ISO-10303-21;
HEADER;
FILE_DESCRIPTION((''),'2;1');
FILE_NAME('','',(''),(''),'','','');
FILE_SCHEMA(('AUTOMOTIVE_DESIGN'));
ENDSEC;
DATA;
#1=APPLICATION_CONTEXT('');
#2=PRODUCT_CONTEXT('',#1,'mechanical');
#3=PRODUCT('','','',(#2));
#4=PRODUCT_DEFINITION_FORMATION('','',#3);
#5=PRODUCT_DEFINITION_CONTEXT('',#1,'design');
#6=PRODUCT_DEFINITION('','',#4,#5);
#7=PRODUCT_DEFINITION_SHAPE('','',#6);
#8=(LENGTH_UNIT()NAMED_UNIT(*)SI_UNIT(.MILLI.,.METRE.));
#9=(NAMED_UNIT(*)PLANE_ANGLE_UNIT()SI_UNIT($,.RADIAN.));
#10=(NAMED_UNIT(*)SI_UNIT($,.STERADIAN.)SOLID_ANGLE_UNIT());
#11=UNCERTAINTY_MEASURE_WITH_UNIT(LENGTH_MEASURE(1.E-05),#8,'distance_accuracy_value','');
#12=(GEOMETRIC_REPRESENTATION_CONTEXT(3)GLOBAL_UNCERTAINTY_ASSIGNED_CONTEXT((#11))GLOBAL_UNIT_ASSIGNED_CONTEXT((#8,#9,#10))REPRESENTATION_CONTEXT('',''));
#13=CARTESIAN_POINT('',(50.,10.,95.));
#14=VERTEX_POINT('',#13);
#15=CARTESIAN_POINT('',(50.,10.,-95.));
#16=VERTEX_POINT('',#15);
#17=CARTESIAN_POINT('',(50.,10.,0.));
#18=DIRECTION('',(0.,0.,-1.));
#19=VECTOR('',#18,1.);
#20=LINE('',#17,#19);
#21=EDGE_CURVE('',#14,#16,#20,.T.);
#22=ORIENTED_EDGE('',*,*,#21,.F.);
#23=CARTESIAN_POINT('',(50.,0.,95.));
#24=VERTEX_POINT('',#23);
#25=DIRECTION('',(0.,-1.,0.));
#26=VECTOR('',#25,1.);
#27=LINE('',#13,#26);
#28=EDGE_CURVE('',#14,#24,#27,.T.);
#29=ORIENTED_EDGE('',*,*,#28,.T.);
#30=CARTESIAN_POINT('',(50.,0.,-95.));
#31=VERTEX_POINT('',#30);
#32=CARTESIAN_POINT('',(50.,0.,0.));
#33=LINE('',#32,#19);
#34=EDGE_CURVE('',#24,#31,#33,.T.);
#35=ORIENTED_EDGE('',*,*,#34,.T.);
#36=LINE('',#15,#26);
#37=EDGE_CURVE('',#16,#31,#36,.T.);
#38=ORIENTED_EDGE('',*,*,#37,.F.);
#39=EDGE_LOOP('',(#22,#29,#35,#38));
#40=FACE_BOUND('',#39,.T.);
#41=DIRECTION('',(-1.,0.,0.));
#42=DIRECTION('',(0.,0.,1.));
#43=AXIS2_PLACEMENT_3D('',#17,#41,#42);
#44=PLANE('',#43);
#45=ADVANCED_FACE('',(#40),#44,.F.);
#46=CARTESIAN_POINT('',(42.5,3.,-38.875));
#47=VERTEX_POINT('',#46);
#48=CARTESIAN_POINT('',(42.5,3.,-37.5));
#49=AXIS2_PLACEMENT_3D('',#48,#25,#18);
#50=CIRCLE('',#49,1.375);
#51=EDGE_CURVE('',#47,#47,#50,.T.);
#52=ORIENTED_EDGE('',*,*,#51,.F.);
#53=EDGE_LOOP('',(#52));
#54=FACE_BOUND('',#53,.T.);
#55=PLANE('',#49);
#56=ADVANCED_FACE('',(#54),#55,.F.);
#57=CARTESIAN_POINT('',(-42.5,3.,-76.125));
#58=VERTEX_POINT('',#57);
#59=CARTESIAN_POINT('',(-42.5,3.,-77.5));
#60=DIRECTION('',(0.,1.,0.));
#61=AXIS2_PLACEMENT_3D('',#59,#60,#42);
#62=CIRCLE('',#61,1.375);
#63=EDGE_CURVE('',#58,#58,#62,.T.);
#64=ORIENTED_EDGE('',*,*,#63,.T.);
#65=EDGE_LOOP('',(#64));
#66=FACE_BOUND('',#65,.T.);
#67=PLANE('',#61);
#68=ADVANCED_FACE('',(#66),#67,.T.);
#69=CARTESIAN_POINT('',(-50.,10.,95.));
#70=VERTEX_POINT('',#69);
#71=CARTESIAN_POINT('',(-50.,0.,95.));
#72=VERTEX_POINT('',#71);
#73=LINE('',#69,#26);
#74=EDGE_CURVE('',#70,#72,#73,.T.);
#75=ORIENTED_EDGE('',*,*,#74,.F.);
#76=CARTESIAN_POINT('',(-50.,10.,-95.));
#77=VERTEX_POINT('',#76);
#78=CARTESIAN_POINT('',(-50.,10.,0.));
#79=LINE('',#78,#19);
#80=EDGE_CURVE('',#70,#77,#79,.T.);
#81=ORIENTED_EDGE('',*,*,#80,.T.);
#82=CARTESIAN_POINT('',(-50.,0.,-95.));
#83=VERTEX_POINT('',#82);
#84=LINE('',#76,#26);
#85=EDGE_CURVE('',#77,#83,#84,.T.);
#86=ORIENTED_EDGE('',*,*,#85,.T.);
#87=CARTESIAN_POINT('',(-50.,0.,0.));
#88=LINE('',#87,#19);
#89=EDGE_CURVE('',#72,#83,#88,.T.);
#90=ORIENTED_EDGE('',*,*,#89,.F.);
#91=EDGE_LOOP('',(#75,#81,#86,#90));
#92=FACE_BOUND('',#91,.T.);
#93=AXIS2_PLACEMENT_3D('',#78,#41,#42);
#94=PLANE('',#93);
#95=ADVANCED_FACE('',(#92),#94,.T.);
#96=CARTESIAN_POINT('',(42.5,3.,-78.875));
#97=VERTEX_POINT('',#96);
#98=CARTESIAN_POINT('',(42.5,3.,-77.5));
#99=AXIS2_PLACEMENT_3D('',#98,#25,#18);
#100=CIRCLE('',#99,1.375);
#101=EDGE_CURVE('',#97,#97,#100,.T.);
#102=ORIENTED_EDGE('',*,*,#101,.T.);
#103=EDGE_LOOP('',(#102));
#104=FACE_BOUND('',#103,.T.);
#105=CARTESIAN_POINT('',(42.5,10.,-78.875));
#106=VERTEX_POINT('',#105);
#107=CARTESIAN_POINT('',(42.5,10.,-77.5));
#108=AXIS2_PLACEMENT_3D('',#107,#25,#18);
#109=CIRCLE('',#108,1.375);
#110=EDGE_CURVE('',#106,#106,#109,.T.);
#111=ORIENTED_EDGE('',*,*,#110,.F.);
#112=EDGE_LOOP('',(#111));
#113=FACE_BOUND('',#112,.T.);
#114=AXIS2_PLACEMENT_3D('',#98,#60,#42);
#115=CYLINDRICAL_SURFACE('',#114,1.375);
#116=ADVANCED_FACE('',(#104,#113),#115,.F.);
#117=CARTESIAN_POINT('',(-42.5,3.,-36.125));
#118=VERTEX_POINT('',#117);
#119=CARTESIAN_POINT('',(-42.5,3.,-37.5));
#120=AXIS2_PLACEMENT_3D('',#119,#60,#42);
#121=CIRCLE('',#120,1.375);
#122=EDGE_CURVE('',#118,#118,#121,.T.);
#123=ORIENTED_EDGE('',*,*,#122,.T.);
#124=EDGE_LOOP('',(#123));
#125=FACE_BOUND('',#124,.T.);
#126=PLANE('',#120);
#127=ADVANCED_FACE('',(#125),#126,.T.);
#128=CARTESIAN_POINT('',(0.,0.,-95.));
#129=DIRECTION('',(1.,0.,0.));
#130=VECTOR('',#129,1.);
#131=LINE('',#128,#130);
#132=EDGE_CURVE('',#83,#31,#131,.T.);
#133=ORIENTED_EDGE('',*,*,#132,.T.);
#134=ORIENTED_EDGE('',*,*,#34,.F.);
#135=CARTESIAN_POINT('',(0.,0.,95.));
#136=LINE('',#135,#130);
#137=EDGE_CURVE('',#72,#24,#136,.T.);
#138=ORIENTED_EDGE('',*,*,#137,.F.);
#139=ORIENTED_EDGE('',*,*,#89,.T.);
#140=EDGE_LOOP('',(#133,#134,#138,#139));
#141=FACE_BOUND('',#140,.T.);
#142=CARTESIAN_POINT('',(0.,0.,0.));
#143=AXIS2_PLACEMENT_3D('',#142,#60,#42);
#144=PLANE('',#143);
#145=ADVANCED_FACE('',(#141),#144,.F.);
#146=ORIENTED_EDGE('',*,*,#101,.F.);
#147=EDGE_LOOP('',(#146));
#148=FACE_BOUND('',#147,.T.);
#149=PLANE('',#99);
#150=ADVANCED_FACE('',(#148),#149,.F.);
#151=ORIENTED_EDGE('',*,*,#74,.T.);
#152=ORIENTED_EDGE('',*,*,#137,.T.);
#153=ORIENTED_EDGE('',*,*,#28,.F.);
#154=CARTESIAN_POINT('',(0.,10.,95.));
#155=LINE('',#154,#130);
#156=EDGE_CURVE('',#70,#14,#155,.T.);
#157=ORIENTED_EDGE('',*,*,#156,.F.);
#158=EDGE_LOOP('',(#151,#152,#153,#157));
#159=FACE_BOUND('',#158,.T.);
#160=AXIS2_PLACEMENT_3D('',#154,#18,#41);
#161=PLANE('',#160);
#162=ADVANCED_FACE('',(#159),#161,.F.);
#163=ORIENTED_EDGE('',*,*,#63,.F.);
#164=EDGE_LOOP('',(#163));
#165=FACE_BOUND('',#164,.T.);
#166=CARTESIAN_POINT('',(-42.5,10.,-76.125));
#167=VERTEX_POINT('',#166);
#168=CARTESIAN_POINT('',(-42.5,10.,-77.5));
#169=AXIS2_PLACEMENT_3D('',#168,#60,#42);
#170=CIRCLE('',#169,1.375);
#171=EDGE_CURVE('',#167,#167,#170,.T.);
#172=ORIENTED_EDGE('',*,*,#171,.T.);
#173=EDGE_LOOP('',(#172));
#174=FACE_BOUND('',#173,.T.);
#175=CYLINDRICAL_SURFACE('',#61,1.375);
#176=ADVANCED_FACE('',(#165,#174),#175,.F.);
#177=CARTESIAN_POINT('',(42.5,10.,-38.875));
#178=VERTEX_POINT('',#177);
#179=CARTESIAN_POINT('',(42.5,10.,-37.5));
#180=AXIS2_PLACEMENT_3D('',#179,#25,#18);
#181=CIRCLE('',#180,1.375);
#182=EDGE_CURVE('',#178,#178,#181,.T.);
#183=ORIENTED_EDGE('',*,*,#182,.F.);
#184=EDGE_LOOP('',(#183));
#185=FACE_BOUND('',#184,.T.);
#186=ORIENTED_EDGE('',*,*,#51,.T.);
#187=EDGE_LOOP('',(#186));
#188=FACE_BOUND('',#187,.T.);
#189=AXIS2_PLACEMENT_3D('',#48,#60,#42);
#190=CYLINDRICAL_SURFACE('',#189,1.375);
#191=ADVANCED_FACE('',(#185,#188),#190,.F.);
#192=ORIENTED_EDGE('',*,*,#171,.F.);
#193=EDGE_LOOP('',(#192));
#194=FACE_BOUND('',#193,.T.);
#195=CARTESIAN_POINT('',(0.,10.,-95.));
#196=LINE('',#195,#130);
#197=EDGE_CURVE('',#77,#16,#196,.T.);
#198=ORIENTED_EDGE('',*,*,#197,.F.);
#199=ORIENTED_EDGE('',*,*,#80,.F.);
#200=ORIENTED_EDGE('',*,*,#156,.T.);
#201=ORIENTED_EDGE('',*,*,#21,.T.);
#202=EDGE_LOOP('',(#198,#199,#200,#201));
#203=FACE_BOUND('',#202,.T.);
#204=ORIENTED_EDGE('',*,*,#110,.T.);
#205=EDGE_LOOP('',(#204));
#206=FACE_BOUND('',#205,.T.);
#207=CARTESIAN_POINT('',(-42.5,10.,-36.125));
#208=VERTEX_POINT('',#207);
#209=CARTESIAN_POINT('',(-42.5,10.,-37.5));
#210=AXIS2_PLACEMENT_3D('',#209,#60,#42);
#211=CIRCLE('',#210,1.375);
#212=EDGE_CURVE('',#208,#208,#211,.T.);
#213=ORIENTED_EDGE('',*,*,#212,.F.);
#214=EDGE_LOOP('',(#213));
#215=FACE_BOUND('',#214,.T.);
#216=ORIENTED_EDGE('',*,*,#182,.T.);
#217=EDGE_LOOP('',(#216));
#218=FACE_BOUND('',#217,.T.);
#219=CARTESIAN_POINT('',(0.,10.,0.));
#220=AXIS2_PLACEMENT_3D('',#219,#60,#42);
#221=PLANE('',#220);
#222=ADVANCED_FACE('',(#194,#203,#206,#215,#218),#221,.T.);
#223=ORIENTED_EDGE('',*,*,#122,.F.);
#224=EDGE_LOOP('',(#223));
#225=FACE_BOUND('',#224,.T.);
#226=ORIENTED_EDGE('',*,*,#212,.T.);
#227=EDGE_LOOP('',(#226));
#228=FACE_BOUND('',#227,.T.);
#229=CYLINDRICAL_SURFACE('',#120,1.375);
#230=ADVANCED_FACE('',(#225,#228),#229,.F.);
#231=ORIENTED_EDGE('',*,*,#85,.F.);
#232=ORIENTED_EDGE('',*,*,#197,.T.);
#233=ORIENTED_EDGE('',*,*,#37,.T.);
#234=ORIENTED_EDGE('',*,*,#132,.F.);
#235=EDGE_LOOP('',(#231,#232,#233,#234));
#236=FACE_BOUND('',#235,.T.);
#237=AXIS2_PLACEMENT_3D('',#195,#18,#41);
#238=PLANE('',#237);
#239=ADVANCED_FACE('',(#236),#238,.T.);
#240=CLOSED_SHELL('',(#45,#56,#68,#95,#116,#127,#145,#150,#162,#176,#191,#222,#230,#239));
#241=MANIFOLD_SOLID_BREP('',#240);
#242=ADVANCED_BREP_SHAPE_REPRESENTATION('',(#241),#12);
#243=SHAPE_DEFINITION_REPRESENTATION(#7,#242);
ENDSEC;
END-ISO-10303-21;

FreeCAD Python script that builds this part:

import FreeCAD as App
import Part
import Sketcher

doc = App.newDocument("Part")
params = doc.addObject("Spreadsheet::Sheet", "Params")
for row, (alias, value) in enumerate([
    ("sketch1_width", "100 mm"),
    ("sketch1_height", "190 mm"),
    ("pad1_length", "10 mm"),
    ("sketch2_diameter", "2.75 mm"),
    ("pocket1_length", "7 mm"),
], start=1):
    params.set(f"A{row}", alias)
    params.set(f"B{row}", "=" + value)
    params.setAlias(f"B{row}", alias)

body = doc.addObject("PartDesign::Body", "Body")

# Sketch on XZ plane
sketch1 = doc.addObject("Sketcher::SketchObject", "Sketch")
body.addObject(sketch1)
sketch1.AttachmentSupport = (doc.XZ_Plane, [""])
sketch1.MapMode = "FlatFace"
sketch1.addGeometry([
    Part.LineSegment(App.Vector(-50, -95, 0), App.Vector(-50, 95, 0)),
    Part.LineSegment(App.Vector(-50, 95, 0), App.Vector(50, 95, 0)),
    Part.LineSegment(App.Vector(50, 95, 0), App.Vector(50, -95, 0)),
    Part.LineSegment(App.Vector(50, -95, 0), App.Vector(-50, -95, 0)),
], False)
sketch1.addConstraint([
    Sketcher.Constraint("Coincident", 0, 2, 1, 1),
    Sketcher.Constraint("Coincident", 1, 2, 2, 1),
    Sketcher.Constraint("Coincident", 2, 2, 3, 1),
    Sketcher.Constraint("Coincident", 3, 2, 0, 1),
    Sketcher.Constraint("Vertical", 0),
    Sketcher.Constraint("Horizontal", 1),
    Sketcher.Constraint("Vertical", 2),
    Sketcher.Constraint("Horizontal", 3),
    Sketcher.Constraint("Symmetric", 0, 2, 2, 2, -1, 1),
    Sketcher.Constraint("DistanceX", 1, 1, 1, 2, 100.0),
    Sketcher.Constraint("DistanceY", 0, 1, 0, 2, 190.0),
])
sketch1.setExpression("Constraints[9]", "Params.sketch1_width")
sketch1.setExpression("Constraints[10]", "Params.sketch1_height")
pad1 = doc.addObject("PartDesign::Pad", "Pad")
body.addObject(pad1)
pad1.Profile = sketch1
pad1.setExpression("Length", "Params.pad1_length")
pad1.Reversed = True

# Sketch on XZ plane
sketch2 = doc.addObject("Sketcher::SketchObject", "Sketch001")
body.addObject(sketch2)
sketch2.AttachmentSupport = (doc.XZ_Plane, [""])
sketch2.MapMode = "FlatFace"
sketch2.AttachmentOffset = App.Placement(App.Vector(0, 0, -10), App.Rotation())
sketch2.addGeometry([
    Part.Circle(App.Vector(-42.5, -77.5, 0), App.Vector(0, 0, 1), 1.4),
    Part.Circle(App.Vector(-42.5, -37.5, 0), App.Vector(0, 0, 1), 1.4),
    Part.Circle(App.Vector(42.5, -37.5, 0), App.Vector(0, 0, 1), 1.4),
    Part.Circle(App.Vector(42.5, -77.5, 0), App.Vector(0, 0, 1), 1.4),
], False)
sketch2.addConstraint([
    Sketcher.Constraint("Equal", 0, 1),
    Sketcher.Constraint("Equal", 1, 2),
    Sketcher.Constraint("Equal", 2, 3),
    Sketcher.Constraint("Symmetric", 1, 3, 2, 3, -2),
    Sketcher.Constraint("Symmetric", 0, 3, 3, 3, -2),
    Sketcher.Constraint("Vertical", 0, 3, 1, 3),
    Sketcher.Constraint("Diameter", 0, 2.75),
    Sketcher.Constraint("DistanceY", 0, 3, 1, 3, 40.0),
    Sketcher.Constraint("DistanceX", 1, 3, 2, 3, 85.0),
    Sketcher.Constraint("DistanceY", 0, 3, -1, 1, 77.5),
])
sketch2.setExpression("Constraints[6]", "Params.sketch2_diameter")
pocket1 = doc.addObject("PartDesign::Pocket", "Pocket")
body.addObject(pocket1)
pocket1.Profile = sketch2
pocket1.setExpression("Length", "Params.pocket1_length")
pocket1.Reversed = True

doc.recompute()
